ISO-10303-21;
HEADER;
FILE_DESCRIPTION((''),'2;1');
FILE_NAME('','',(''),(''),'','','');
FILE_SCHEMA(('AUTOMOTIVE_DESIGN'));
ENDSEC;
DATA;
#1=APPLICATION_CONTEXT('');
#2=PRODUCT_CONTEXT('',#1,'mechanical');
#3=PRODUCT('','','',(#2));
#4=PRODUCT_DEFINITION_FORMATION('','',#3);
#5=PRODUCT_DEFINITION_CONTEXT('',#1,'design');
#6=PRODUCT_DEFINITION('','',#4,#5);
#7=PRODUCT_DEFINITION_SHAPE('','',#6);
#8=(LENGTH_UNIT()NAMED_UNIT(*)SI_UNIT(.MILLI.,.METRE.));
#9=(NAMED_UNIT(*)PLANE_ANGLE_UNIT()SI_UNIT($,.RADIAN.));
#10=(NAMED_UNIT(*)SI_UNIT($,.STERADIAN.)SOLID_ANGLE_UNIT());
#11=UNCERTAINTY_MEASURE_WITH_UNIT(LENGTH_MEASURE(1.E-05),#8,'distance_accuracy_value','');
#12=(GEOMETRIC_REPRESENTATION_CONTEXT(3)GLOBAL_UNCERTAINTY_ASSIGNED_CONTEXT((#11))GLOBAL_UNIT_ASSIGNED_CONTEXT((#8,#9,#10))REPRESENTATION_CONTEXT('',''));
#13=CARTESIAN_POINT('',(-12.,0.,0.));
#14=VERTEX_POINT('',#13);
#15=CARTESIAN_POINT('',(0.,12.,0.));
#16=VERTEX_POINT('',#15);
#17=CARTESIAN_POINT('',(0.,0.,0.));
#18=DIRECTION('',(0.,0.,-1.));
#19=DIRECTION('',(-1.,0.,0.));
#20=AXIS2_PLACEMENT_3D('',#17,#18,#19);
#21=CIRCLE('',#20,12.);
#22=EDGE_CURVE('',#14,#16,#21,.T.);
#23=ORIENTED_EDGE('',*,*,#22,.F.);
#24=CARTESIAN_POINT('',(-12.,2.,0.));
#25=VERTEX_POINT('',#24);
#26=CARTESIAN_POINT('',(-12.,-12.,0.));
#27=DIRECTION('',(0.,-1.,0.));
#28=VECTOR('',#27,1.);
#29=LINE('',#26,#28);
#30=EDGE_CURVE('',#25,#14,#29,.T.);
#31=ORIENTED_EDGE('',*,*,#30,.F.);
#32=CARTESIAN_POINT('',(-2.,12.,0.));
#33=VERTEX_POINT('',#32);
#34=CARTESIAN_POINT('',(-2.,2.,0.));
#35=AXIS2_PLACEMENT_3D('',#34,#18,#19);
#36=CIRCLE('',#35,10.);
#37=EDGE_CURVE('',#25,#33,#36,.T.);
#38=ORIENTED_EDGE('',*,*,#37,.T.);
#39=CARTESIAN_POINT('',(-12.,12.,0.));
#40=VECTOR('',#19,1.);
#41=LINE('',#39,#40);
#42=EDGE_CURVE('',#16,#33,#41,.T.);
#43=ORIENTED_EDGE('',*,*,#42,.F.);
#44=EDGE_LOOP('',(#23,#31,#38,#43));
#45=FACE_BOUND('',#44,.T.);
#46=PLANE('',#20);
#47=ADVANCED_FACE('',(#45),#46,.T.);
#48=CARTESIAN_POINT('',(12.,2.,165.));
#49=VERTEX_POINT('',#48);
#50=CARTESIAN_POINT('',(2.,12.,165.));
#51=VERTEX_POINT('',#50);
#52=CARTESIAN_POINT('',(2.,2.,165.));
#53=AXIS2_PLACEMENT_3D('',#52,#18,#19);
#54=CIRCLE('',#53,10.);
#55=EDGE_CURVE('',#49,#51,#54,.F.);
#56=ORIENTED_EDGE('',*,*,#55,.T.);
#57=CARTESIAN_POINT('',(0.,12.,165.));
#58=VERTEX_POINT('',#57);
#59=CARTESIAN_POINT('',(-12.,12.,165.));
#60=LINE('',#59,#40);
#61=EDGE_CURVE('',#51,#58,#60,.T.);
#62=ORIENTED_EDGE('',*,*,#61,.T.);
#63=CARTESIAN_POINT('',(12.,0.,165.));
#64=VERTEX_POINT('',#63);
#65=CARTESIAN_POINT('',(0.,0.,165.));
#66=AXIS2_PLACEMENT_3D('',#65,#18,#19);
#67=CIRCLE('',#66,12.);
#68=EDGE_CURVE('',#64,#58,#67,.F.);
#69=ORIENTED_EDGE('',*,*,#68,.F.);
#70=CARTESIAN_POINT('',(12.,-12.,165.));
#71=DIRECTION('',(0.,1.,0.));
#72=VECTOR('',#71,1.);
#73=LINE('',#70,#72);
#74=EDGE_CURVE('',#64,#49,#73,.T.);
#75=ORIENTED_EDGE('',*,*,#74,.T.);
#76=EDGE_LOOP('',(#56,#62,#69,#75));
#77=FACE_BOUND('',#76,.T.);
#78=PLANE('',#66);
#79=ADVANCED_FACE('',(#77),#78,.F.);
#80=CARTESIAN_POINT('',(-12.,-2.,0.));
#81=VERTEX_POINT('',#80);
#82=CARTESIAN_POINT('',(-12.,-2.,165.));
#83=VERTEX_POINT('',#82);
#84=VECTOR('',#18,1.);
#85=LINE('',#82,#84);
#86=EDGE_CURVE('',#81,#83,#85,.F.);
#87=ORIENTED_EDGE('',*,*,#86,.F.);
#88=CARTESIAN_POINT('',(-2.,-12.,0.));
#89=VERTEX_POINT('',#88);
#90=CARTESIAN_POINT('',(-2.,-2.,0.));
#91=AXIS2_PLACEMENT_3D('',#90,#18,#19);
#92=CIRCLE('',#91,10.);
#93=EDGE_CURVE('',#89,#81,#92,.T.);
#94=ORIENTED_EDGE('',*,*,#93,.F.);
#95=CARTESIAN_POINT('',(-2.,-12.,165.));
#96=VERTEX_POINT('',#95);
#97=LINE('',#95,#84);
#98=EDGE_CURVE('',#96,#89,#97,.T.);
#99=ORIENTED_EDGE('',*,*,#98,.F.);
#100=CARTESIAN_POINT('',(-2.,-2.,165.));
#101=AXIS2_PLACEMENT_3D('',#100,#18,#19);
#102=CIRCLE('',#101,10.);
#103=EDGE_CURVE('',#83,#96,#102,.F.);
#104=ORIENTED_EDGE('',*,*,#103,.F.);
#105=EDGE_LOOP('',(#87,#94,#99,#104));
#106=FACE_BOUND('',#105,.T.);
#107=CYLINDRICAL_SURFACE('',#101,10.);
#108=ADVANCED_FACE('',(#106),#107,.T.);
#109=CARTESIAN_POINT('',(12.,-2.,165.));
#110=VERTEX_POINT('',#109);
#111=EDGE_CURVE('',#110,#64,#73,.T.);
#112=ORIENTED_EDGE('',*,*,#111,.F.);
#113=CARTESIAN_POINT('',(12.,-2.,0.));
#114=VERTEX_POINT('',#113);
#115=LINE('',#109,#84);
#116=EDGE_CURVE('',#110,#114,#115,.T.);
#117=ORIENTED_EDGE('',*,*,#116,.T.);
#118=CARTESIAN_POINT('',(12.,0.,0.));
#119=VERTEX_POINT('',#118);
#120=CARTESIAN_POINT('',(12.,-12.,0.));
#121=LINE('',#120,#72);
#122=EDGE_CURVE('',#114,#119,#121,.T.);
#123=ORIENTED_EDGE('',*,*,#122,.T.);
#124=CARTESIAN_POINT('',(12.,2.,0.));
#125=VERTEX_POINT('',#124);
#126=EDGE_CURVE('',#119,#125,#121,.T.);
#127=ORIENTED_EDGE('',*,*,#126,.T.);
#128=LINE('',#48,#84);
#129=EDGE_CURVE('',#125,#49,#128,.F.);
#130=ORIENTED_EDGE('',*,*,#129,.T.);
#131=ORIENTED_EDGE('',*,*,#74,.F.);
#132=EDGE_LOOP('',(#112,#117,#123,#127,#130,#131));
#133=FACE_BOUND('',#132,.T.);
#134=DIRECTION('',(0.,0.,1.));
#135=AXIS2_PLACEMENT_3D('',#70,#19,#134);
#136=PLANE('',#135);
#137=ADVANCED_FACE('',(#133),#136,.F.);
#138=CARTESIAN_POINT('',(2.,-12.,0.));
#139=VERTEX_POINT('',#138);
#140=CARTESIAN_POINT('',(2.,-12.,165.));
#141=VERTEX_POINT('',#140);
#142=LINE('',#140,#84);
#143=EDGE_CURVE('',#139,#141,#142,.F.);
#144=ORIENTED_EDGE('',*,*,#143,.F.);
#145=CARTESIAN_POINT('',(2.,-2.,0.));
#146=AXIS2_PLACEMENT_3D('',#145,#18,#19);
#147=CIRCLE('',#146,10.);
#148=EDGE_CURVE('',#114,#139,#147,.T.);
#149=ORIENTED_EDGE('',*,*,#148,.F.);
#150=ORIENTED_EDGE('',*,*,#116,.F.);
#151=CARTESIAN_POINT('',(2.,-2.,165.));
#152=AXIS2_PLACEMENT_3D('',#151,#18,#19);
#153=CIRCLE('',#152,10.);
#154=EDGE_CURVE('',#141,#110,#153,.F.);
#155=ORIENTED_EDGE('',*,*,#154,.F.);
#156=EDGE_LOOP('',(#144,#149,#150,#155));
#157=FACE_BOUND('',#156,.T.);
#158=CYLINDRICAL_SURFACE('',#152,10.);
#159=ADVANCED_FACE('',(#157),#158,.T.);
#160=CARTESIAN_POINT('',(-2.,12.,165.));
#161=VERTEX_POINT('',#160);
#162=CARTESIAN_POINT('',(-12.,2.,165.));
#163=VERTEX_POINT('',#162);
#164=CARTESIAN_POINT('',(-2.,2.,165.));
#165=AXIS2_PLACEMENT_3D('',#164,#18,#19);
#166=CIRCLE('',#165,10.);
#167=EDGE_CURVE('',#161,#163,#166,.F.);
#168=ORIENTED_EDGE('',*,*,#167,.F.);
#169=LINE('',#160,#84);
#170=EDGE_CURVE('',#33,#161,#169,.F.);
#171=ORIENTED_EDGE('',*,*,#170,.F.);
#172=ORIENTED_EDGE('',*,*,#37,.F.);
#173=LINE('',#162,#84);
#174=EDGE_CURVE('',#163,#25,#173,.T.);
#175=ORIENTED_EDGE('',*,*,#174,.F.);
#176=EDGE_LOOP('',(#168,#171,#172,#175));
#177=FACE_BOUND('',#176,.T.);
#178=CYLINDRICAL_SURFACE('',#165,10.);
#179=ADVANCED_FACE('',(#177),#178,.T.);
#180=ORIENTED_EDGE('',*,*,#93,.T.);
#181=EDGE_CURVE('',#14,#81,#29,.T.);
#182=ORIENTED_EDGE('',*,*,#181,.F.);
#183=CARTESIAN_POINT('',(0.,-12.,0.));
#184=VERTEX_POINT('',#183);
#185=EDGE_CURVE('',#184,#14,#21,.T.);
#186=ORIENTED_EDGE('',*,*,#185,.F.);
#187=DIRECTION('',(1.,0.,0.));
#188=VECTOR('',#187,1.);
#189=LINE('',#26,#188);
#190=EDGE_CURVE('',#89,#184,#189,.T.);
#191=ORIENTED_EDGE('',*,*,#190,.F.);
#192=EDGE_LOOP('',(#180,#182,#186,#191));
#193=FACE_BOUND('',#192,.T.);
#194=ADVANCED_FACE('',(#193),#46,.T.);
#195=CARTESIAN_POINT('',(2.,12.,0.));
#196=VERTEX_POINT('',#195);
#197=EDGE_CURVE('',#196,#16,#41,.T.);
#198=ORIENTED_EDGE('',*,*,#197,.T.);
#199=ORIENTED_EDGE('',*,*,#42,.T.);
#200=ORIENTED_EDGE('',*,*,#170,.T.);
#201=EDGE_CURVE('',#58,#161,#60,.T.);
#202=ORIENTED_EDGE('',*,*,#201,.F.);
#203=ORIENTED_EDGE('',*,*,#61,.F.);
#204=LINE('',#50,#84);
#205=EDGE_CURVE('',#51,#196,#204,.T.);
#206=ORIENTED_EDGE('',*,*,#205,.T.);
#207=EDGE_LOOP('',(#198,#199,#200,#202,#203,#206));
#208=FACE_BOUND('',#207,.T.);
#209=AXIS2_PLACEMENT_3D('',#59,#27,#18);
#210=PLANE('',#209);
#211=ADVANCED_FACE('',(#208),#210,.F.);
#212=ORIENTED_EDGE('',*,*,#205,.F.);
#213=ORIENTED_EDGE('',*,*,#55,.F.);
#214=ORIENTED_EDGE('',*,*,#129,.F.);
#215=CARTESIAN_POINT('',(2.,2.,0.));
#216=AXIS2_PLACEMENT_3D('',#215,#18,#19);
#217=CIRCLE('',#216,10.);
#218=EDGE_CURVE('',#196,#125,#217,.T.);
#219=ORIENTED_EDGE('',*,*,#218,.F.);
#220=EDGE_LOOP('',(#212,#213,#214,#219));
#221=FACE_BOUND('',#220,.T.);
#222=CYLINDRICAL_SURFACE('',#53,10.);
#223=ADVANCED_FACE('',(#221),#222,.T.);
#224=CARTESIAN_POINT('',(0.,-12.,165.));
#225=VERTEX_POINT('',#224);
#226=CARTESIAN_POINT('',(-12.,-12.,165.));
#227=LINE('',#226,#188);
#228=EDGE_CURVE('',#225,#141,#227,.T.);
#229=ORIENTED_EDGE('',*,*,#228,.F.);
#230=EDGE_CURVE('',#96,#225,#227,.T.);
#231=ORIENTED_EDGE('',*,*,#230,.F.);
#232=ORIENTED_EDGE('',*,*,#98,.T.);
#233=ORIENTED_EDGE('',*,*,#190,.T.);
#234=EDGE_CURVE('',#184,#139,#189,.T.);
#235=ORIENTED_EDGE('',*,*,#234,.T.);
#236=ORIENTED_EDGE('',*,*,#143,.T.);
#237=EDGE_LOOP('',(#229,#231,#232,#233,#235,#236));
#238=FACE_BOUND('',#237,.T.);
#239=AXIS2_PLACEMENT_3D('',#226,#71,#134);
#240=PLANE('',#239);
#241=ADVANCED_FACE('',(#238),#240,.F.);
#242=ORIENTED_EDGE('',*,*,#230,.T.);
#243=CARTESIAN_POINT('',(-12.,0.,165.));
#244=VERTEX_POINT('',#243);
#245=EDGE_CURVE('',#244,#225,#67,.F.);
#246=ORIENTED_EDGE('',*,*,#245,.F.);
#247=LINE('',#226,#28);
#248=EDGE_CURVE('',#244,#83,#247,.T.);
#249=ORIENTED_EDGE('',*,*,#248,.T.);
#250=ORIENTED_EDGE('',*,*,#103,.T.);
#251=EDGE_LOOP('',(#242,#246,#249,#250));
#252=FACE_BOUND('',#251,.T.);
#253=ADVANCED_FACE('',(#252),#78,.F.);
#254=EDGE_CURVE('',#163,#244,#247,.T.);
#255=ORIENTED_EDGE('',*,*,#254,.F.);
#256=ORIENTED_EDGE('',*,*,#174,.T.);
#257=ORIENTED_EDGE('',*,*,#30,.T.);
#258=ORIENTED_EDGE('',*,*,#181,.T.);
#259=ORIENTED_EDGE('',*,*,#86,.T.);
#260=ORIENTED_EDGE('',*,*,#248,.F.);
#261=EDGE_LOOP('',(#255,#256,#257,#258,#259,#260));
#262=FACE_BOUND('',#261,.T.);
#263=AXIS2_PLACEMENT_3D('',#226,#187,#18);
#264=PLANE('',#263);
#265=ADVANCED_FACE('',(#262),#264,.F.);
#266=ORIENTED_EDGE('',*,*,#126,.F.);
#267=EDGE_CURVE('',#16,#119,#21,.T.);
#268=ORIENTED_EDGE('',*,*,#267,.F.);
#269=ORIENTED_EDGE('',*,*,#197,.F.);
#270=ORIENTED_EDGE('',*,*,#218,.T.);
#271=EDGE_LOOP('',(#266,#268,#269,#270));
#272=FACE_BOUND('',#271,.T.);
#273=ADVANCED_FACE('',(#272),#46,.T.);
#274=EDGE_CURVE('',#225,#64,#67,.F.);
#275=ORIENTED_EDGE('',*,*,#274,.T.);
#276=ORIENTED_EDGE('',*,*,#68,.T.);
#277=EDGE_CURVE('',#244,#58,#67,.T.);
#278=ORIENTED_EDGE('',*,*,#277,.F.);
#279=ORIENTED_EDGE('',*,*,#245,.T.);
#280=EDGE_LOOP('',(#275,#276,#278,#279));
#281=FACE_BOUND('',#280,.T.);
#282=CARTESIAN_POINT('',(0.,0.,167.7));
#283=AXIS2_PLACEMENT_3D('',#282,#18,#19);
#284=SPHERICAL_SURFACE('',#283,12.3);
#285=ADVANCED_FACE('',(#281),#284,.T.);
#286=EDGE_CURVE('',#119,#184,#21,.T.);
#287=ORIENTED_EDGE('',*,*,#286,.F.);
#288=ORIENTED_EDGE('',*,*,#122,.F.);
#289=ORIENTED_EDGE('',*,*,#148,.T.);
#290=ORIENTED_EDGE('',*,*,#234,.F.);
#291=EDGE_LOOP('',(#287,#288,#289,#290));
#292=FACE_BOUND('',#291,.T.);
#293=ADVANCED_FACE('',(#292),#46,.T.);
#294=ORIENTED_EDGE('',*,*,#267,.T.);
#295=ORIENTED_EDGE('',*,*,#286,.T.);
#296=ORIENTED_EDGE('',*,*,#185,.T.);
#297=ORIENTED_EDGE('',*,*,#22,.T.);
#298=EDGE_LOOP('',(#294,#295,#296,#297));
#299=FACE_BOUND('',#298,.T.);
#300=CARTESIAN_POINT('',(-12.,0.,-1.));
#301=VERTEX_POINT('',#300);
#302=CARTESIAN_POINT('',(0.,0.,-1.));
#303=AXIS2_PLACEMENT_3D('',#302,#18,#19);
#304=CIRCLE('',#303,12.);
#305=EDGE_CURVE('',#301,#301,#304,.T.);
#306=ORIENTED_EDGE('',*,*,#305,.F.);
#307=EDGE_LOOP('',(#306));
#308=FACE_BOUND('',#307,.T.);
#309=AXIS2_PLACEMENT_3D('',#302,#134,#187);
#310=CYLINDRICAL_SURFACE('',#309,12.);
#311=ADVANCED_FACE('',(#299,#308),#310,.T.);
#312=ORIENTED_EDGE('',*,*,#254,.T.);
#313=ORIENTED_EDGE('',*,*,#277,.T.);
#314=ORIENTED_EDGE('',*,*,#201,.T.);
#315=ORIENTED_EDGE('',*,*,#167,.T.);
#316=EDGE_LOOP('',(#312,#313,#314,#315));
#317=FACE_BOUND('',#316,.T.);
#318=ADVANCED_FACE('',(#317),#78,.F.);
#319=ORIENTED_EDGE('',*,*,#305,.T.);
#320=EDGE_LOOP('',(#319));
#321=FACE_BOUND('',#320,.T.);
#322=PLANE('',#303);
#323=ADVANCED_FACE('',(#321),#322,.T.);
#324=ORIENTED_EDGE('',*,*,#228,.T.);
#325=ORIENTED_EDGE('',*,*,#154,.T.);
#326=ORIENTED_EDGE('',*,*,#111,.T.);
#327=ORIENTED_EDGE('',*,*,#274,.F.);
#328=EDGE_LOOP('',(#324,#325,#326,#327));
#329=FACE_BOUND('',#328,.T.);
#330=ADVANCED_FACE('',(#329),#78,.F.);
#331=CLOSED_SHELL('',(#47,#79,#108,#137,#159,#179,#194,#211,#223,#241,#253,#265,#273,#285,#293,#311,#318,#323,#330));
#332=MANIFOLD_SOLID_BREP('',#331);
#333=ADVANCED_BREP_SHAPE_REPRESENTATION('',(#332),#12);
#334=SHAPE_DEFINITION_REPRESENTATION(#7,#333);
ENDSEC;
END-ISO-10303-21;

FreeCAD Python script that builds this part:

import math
import FreeCAD as App
import Part
import Sketcher
from FreeCAD import Vector


def edges_at(feature, points):
    """Names of the edges that pass closest to the given points."""
    edges = feature.Shape.Edges
    near = lambda p: min(range(len(edges)), key=lambda i: edges[i].distToShape(Part.Vertex(*p))[0])
    return sorted({f"Edge{near(p) + 1}" for p in points})

doc = App.newDocument("Part")
body = doc.addObject("PartDesign::Body", "Body")

# Sketch on XY plane
sketch1 = body.newObject("Sketcher::SketchObject", "Sketch")
sketch1.AttachmentSupport = (doc.getObject("XY_Plane"), [""])
sketch1.MapMode = "FlatFace"
sketch1.addGeometry(Part.LineSegment(Vector(-12, 12, 0), Vector(-12, -12, 0)), False)
sketch1.addGeometry(Part.LineSegment(Vector(-12, -12, 0), Vector(12, -12, 0)), False)
sketch1.addGeometry(Part.LineSegment(Vector(12, -12, 0), Vector(12, 12, 0)), False)
sketch1.addGeometry(Part.LineSegment(Vector(12, 12, 0), Vector(-12, 12, 0)), False)
sketch1.addConstraint(Sketcher.Constraint("Coincident", 0, 2, 1, 1))
sketch1.addConstraint(Sketcher.Constraint("Coincident", 1, 2, 2, 1))
sketch1.addConstraint(Sketcher.Constraint("Coincident", 2, 2, 3, 1))
sketch1.addConstraint(Sketcher.Constraint("Coincident", 3, 2, 0, 1))
sketch1.addConstraint(Sketcher.Constraint("Vertical", 0))
sketch1.addConstraint(Sketcher.Constraint("Horizontal", 1))
sketch1.addConstraint(Sketcher.Constraint("Vertical", 2))
sketch1.addConstraint(Sketcher.Constraint("Horizontal", 3))
sketch1.addConstraint(Sketcher.Constraint("Symmetric", 0, 2, 2, 2, -1, 1))
sketch1.addConstraint(Sketcher.Constraint("Equal", 3, 0))
sketch1.addConstraint(Sketcher.Constraint("DistanceX", 1, 1, 1, 2, 24.0))
pad1 = body.newObject("PartDesign::Pad", "Pad")
pad1.Profile = sketch1
pad1.Length = 165

# Sketch on XZ plane
sketch2 = body.newObject("Sketcher::SketchObject", "Sketch001")
sketch2.AttachmentSupport = (doc.getObject("XZ_Plane"), [""])
sketch2.MapMode = "FlatFace"
sketch2.addGeometry(Part.LineSegment(Vector(0, 165, 0), Vector(0, 180, 0)), False)
sketch2.addGeometry(Part.ArcOfCircle(Part.Circle(Vector(0, 168, 0), Vector(0, 0, 1), 12), math.radians(90), math.radians(193)), False)
sketch2.addGeometry(Part.LineSegment(Vector(-12, 165, 0), Vector(0, 165, 0)), False)
sketch2.addConstraint(Sketcher.Constraint("Coincident", 0, 2, 1, 1))
sketch2.addConstraint(Sketcher.Constraint("Coincident", 1, 2, 2, 1))
sketch2.addConstraint(Sketcher.Constraint("Coincident", 2, 2, 0, 1))
sketch2.addConstraint(Sketcher.Constraint("Vertical", 0))
sketch2.addConstraint(Sketcher.Constraint("Horizontal", 2))
sketch2.addConstraint(Sketcher.Constraint("PointOnObject", 1, 3, -2))
sketch2.addConstraint(Sketcher.Constraint("PointOnObject", 0, 2, -2))
sketch2.addConstraint(Sketcher.Constraint("Radius", 1, 12.3))
sketch2.addConstraint(Sketcher.Constraint("DistanceX", 2, 1, 2, 2, 12.0))
sketch2.addConstraint(Sketcher.Constraint("DistanceY", -1, 1, 0, 2, 180.0))
revolution = body.newObject("PartDesign::Revolution", "Revolution")
revolution.Profile = sketch2
revolution.ReferenceAxis = (sketch2, ["V_Axis"])
revolution.Angle = 360
doc.recompute()

fillet = body.newObject("PartDesign::Fillet", "Fillet")
fillet.Base = (revolution, edges_at(revolution, [
    (12, -12, 82.5),
    (-12, -12, 82.5),
    (-12, 12, 82.5),
    (12, 12, 82.5),
]))
fillet.Radius = 10

# Sketch on XY plane
sketch3 = body.newObject("Sketcher::SketchObject", "Sketch002")
sketch3.AttachmentSupport = (doc.getObject("XY_Plane"), [""])
sketch3.MapMode = "FlatFace"
sketch3.addGeometry(Part.Circle(Vector(0, 0, 0), Vector(0, 0, 1), 12), False)
sketch3.addConstraint(Sketcher.Constraint("Coincident", 0, 3, -1, 1))
sketch3.addConstraint(Sketcher.Constraint("Diameter", 0, 24.0))
pad2 = body.newObject("PartDesign::Pad", "Pad001")
pad2.Profile = sketch3
pad2.Length = 1
pad2.Reversed = True

doc.recompute()
